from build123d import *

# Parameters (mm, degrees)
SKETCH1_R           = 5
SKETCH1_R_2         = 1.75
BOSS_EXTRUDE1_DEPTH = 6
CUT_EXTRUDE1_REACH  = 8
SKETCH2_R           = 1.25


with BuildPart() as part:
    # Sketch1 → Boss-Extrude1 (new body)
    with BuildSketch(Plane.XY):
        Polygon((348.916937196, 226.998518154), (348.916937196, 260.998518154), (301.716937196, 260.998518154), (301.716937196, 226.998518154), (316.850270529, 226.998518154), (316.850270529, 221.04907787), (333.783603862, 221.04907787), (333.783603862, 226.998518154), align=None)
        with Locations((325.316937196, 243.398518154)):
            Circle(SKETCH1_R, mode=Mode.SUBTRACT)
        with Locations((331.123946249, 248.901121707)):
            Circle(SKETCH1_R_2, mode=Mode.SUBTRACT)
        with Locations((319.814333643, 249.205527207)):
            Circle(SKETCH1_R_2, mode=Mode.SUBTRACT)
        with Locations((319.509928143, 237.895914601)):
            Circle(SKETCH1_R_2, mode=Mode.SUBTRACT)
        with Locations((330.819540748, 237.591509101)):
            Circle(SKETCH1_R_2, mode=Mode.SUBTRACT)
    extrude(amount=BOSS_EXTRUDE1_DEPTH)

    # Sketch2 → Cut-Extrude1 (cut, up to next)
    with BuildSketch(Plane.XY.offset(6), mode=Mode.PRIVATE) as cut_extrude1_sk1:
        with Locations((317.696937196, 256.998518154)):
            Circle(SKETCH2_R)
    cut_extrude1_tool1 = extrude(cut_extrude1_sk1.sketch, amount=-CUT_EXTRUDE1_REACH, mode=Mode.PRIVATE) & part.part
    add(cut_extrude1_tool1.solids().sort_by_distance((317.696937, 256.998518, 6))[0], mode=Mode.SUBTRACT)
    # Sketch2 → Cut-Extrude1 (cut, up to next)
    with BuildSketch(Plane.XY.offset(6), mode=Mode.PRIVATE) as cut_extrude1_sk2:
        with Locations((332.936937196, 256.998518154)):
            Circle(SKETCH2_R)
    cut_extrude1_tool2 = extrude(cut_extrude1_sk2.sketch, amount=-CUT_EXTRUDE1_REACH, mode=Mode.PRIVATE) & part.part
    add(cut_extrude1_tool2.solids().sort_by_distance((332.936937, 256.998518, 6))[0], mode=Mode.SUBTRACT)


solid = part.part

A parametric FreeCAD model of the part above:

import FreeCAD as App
import Part
import Sketcher

V = App.Vector
Q = App.Units.Quantity

doc = App.newDocument("Part")
params = doc.addObject("Spreadsheet::Sheet", "Params")
for row, (alias, value) in enumerate([
    ("sketch1_diameter", "10 mm"),
    ("sketch1_diameter2", "3.5 mm"),
    ("sketch1_height", "34 mm"),
    ("sketch1_width", "47.2 mm"),
    ("pad1_length", "6 mm"),
    ("sketch2_diameter", "2.5 mm"),
    ("sketch3_diameter", "2.5 mm"),
], start=1):
    params.set(f"A{row}", alias)
    params.set(f"B{row}", "=" + value)
    params.setAlias(f"B{row}", alias)

body = doc.addObject("PartDesign::Body", "Body")

sketch1 = body.newObject("Sketcher::SketchObject", "Sketch")
sketch1.AttachmentSupport = (doc.getObject("XY_Plane"), [""])
sketch1.MapMode = "FlatFace"
sketch1.addGeometry([
    Part.LineSegment(V(348.9, 227, 0), V(348.9, 261, 0)),
    Part.LineSegment(V(348.9, 261, 0), V(301.7, 261, 0)),
    Part.LineSegment(V(301.7, 261, 0), V(301.7, 227, 0)),
    Part.LineSegment(V(301.7, 227, 0), V(316.9, 227, 0)),
    Part.LineSegment(V(316.9, 227, 0), V(316.9, 221, 0)),
    Part.LineSegment(V(316.9, 221, 0), V(333.8, 221, 0)),
    Part.LineSegment(V(333.8, 221, 0), V(333.8, 227, 0)),
    Part.LineSegment(V(333.8, 227, 0), V(348.9, 227, 0)),
    Part.Circle(V(319.5, 237.9, 0), V(0, 0, 1), 1.8),
    Part.Circle(V(330.8, 237.6, 0), V(0, 0, 1), 1.8),
    Part.Circle(V(325.3, 243.4, 0), V(0, 0, 1), 5),
    Part.Circle(V(319.8, 249.2, 0), V(0, 0, 1), 1.8),
    Part.Circle(V(331.1, 248.9, 0), V(0, 0, 1), 1.8),
], False)
sketch1.addConstraint([
    Sketcher.Constraint("Coincident", 0, 2, 1, 1),
    Sketcher.Constraint("Coincident", 1, 2, 2, 1),
    Sketcher.Constraint("Coincident", 2, 2, 3, 1),
    Sketcher.Constraint("Coincident", 3, 2, 4, 1),
    Sketcher.Constraint("Coincident", 4, 2, 5, 1),
    Sketcher.Constraint("Coincident", 5, 2, 6, 1),
    Sketcher.Constraint("Coincident", 6, 2, 7, 1),
    Sketcher.Constraint("Coincident", 7, 2, 0, 1),
    Sketcher.Constraint("Vertical", 0),
    Sketcher.Constraint("Horizontal", 1),
    Sketcher.Constraint("Vertical", 2),
    Sketcher.Constraint("Horizontal", 3),
    Sketcher.Constraint("Vertical", 4),
    Sketcher.Constraint("Horizontal", 5),
    Sketcher.Constraint("Vertical", 6),
    Sketcher.Constraint("Horizontal", 7),
    Sketcher.Constraint("Equal", 8, 9),
    Sketcher.Constraint("Equal", 9, 11),
    Sketcher.Constraint("Equal", 11, 12),
    Sketcher.Constraint("Horizontal", 3, 2, 6, 2),
    Sketcher.Constraint("Equal", 3, 7),
    Sketcher.Constraint("Diameter", 10, Q("10 mm")),
    Sketcher.Constraint("Diameter", 8, Q("3.5 mm")),
    Sketcher.Constraint("DistanceY", 0, 1, 0, 2, Q("34 mm")),
    Sketcher.Constraint("DistanceX", 1, 2, 1, 1, Q("47.2 mm")),
    Sketcher.Constraint("DistanceX", 10, 3, 0, 2, Q("23.6 mm")),
    Sketcher.Constraint("DistanceY", 10, 3, 0, 2, Q("17.6 mm")),
    Sketcher.Constraint("DistanceY", 4, 2, 4, 1, Q("5.94944 mm")),
    Sketcher.Constraint("DistanceX", 3, 1, 3, 2, Q("15.133333 mm")),
    Sketcher.Constraint("DistanceX", -1, 1, 8, 3, Q("319.509928 mm")),
    Sketcher.Constraint("DistanceX", -1, 1, 9, 3, Q("330.819541 mm")),
    Sketcher.Constraint("DistanceY", -1, 1, 9, 3, Q("237.591509 mm")),
    Sketcher.Constraint("DistanceY", -1, 1, 10, 3, Q("243.398518 mm")),
    Sketcher.Constraint("DistanceY", -1, 1, 12, 3, Q("248.901122 mm")),
    Sketcher.Constraint("DistanceX", -1, 1, 3, 2, Q("316.850271 mm")),
    Sketcher.Constraint("DistanceY", 10, 3, 11, 3, Q("5.807009 mm")),
    Sketcher.Constraint("DistanceX", 10, 3, 12, 3, Q("5.807009 mm")),
    Sketcher.Constraint("DistanceY", -1, 1, 8, 3, Q("237.895915 mm")),
    Sketcher.Constraint("DistanceX", -1, 1, 11, 3, Q("319.814334 mm")),
])
sketch1.setExpression("Constraints[21]", "Params.sketch1_diameter")
sketch1.setExpression("Constraints[22]", "Params.sketch1_diameter2")
sketch1.setExpression("Constraints[23]", "Params.sketch1_height")
sketch1.setExpression("Constraints[24]", "Params.sketch1_width")
pad1 = body.newObject("PartDesign::Pad", "Pad")
pad1.Profile = sketch1
pad1.setExpression("Length", "Params.pad1_length")

sketch2 = body.newObject("Sketcher::SketchObject", "Sketch001")
sketch2.AttachmentSupport = (doc.getObject("XY_Plane"), [""])
sketch2.MapMode = "FlatFace"
sketch2.AttachmentOffset = App.Placement(V(0, 0, 6), App.Rotation())
sketch2.addGeometry(Part.Circle(V(317.7, 257, 0), V(0, 0, 1), 1.2), False)
sketch2.addConstraint([
    Sketcher.Constraint("Diameter", 0, Q("2.5 mm")),
    Sketcher.Constraint("DistanceY", -1, 1, 0, 3, Q("256.998518 mm")),
    Sketcher.Constraint("DistanceX", -1, 1, 0, 3, Q("317.696937 mm")),
])
sketch2.setExpression("Constraints[0]", "Params.sketch2_diameter")
pocket1 = body.newObject("PartDesign::Pocket", "Pocket")
pocket1.Profile = sketch2
pocket1.Type = "UpToFirst"

sketch3 = body.newObject("Sketcher::SketchObject", "Sketch002")
sketch3.AttachmentSupport = (doc.getObject("XY_Plane"), [""])
sketch3.MapMode = "FlatFace"
sketch3.AttachmentOffset = App.Placement(V(0, 0, 6), App.Rotation())
sketch3.addGeometry(Part.Circle(V(332.9, 257, 0), V(0, 0, 1), 1.2), False)
sketch3.addConstraint([
    Sketcher.Constraint("Diameter", 0, Q("2.5 mm")),
    Sketcher.Constraint("DistanceY", -1, 1, 0, 3, Q("256.998518 mm")),
    Sketcher.Constraint("DistanceX", -1, 1, 0, 3, Q("332.936937 mm")),
])
sketch3.setExpression("Constraints[0]", "Params.sketch3_diameter")
pocket2 = body.newObject("PartDesign::Pocket", "Pocket001")
pocket2.Profile = sketch3
pocket2.Type = "UpToFirst"

doc.recompute()
